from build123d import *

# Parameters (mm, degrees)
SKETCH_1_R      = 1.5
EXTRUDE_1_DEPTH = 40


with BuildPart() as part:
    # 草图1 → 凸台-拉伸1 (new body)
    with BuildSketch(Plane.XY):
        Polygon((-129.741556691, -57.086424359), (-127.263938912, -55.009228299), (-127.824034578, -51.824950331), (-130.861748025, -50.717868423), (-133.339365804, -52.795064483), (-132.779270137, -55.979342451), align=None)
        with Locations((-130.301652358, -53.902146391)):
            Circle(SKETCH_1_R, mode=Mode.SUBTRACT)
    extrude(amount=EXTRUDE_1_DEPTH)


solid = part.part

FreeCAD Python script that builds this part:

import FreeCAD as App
import Part
import Sketcher

V = App.Vector
Q = App.Units.Quantity


def add_polygon(sketch, points):
    """Adds a closed chain of lines whose ends are joined by coincident constraints."""
    first, n = sketch.GeometryCount, len(points)
    for a, b in zip(points, points[1:] + points[:1]):
        sketch.addGeometry(Part.LineSegment(App.Vector(*a, 0), App.Vector(*b, 0)), False)
    for i in range(n):
        sketch.addConstraint(Sketcher.Constraint("Coincident", first + i, 2, first + (i + 1) % n, 1))

doc = App.newDocument("Part")
params = doc.addObject("Spreadsheet::Sheet", "Params")
for row, (alias, value) in enumerate([
    ("sketch1_diameter", "3 mm"),
    ("pad1_length", "40 mm"),
], start=1):
    params.set(f"A{row}", alias)
    params.set(f"B{row}", "=" + value)
    params.setAlias(f"B{row}", alias)

body = doc.addObject("PartDesign::Body", "Body")

# Sketch on XY plane
sketch1 = doc.addObject("Sketcher::SketchObject", "Sketch")
body.addObject(sketch1)
sketch1.AttachmentSupport = (doc.XY_Plane, [""])
sketch1.MapMode = "FlatFace"
add_polygon(sketch1, [(-129.7, -57.1), (-127.3, -55), (-127.8, -51.8), (-130.9, -50.7), (-133.3, -52.8), (-132.8, -56)])  # lines 0-5
sketch1.addGeometry(Part.Circle(V(-130.3, -53.9, 0), V(0, 0, 1), 1.5), False)  # 6
sketch1.addConstraint([
    Sketcher.Constraint("Parallel", 0, 3),
    Sketcher.Constraint("Parallel", 1, 4),
    Sketcher.Constraint("Parallel", 2, 5),
    Sketcher.Constraint("Equal", 0, 1),
    Sketcher.Constraint("Equal", 1, 2),
    Sketcher.Constraint("Equal", 2, 3),
    Sketcher.Constraint("Diameter", 6, Q("3 mm")),
    Sketcher.Constraint("Distance", 0, Q("3.233162 mm")),
    Sketcher.Constraint("DistanceX", 0, 2, -1, 1, Q("127.263939 mm")),
    Sketcher.Constraint("DistanceY", 0, 2, -1, 1, Q("55.009228 mm")),
    Sketcher.Constraint("DistanceY", 1, 2, -1, 1, Q("51.82495 mm")),
    Sketcher.Constraint("DistanceX", 2, 2, -1, 1, Q("130.861748 mm")),
    Sketcher.Constraint("DistanceX", 4, 2, -1, 1, Q("132.77927 mm")),
    Sketcher.Constraint("DistanceY", 0, 2, 6, 3, Q("1.107082 mm")),
    Sketcher.Constraint("DistanceX", 6, 3, -1, 1, Q("130.301652 mm")),
])
sketch1.setExpression("Constraints[12]", "Params.sketch1_diameter")
pad1 = doc.addObject("PartDesign::Pad", "Pad")
body.addObject(pad1)
pad1.Profile = sketch1
pad1.setExpression("Length", "Params.pad1_length")

doc.recompute()
